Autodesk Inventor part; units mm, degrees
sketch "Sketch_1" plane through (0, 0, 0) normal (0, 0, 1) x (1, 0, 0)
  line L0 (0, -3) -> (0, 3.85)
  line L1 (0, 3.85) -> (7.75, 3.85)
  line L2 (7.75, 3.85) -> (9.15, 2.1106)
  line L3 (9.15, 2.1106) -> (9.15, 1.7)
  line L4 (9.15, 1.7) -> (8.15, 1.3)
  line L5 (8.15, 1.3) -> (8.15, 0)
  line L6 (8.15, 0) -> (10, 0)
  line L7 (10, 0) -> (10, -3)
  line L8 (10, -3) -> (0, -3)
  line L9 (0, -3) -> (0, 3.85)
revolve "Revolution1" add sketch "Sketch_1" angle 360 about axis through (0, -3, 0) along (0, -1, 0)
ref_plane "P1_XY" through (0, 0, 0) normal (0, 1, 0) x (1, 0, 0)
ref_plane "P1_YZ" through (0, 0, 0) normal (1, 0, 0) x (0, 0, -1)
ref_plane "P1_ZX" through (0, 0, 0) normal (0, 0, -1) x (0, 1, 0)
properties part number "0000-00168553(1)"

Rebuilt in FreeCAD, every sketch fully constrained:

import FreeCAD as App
import Part
import Sketcher
from FreeCAD import Vector
Q = App.Units.Quantity


def add_polygon(sketch, points):
    """Adds a closed chain of lines whose ends are joined by coincident constraints."""
    first, n = sketch.GeometryCount, len(points)
    for a, b in zip(points, points[1:] + points[:1]):
        sketch.addGeometry(Part.LineSegment(App.Vector(*a, 0), App.Vector(*b, 0)), False)
    for i in range(n):
        sketch.addConstraint(Sketcher.Constraint("Coincident", first + i, 2, first + (i + 1) % n, 1))

doc = App.newDocument("Part")
body = doc.addObject("PartDesign::Body", "Body")

# Sketch on XY plane
sketch1 = body.newObject("Sketcher::SketchObject", "Sketch")
sketch1.AttachmentSupport = (doc.getObject("XY_Plane"), [""])
sketch1.MapMode = "FlatFace"
add_polygon(sketch1, [(0, 3.85), (0, -3), (10, -3), (10, 0), (8.15, 0), (8.15, 1.3), (9.15, 1.7), (9.15, 2.11), (7.75, 3.85)])  # lines 0-8
sketch1.addConstraint(Sketcher.Constraint("Vertical", 0))
sketch1.addConstraint(Sketcher.Constraint("Horizontal", 1))
sketch1.addConstraint(Sketcher.Constraint("Vertical", 2))
sketch1.addConstraint(Sketcher.Constraint("Horizontal", 3))
sketch1.addConstraint(Sketcher.Constraint("Vertical", 4))
sketch1.addConstraint(Sketcher.Constraint("Vertical", 6))
sketch1.addConstraint(Sketcher.Constraint("Horizontal", 8))
sketch1.addConstraint(Sketcher.Constraint("PointOnObject", 0, 2, -2))
sketch1.addConstraint(Sketcher.Constraint("PointOnObject", 2, 2, -1))
sketch1.addConstraint(Sketcher.Constraint("DistanceX", 1, 1, 1, 2, 10.0))
sketch1.addConstraint(Sketcher.Constraint("DistanceY", 2, 1, 2, 2, 3.0))
sketch1.addConstraint(Sketcher.Constraint("DistanceY", 4, 1, 4, 2, 1.3))
sketch1.addConstraint(Sketcher.Constraint("DistanceX", 4, 2, 5, 2, 1.0))
sketch1.addConstraint(Sketcher.Constraint("DistanceX", 3, 2, 3, 1, 1.85))
sketch1.addConstraint(Sketcher.Constraint("DistanceX", 8, 2, 8, 1, 7.75))
sketch1.addConstraint(Sketcher.Constraint("DistanceY", 0, 2, 0, 1, 6.85))
sketch1.addConstraint(Sketcher.Constraint("DistanceY", -1, 1, 5, 2, 1.7))
sketch1.addConstraint(Sketcher.Constraint("Angle", 7, Q("128.8297 deg")))
revolution = body.newObject("PartDesign::Revolution", "Revolution")
revolution.Profile = sketch1
revolution.ReferenceAxis = (sketch1, ["V_Axis"])
revolution.Angle = 360

doc.recompute()
